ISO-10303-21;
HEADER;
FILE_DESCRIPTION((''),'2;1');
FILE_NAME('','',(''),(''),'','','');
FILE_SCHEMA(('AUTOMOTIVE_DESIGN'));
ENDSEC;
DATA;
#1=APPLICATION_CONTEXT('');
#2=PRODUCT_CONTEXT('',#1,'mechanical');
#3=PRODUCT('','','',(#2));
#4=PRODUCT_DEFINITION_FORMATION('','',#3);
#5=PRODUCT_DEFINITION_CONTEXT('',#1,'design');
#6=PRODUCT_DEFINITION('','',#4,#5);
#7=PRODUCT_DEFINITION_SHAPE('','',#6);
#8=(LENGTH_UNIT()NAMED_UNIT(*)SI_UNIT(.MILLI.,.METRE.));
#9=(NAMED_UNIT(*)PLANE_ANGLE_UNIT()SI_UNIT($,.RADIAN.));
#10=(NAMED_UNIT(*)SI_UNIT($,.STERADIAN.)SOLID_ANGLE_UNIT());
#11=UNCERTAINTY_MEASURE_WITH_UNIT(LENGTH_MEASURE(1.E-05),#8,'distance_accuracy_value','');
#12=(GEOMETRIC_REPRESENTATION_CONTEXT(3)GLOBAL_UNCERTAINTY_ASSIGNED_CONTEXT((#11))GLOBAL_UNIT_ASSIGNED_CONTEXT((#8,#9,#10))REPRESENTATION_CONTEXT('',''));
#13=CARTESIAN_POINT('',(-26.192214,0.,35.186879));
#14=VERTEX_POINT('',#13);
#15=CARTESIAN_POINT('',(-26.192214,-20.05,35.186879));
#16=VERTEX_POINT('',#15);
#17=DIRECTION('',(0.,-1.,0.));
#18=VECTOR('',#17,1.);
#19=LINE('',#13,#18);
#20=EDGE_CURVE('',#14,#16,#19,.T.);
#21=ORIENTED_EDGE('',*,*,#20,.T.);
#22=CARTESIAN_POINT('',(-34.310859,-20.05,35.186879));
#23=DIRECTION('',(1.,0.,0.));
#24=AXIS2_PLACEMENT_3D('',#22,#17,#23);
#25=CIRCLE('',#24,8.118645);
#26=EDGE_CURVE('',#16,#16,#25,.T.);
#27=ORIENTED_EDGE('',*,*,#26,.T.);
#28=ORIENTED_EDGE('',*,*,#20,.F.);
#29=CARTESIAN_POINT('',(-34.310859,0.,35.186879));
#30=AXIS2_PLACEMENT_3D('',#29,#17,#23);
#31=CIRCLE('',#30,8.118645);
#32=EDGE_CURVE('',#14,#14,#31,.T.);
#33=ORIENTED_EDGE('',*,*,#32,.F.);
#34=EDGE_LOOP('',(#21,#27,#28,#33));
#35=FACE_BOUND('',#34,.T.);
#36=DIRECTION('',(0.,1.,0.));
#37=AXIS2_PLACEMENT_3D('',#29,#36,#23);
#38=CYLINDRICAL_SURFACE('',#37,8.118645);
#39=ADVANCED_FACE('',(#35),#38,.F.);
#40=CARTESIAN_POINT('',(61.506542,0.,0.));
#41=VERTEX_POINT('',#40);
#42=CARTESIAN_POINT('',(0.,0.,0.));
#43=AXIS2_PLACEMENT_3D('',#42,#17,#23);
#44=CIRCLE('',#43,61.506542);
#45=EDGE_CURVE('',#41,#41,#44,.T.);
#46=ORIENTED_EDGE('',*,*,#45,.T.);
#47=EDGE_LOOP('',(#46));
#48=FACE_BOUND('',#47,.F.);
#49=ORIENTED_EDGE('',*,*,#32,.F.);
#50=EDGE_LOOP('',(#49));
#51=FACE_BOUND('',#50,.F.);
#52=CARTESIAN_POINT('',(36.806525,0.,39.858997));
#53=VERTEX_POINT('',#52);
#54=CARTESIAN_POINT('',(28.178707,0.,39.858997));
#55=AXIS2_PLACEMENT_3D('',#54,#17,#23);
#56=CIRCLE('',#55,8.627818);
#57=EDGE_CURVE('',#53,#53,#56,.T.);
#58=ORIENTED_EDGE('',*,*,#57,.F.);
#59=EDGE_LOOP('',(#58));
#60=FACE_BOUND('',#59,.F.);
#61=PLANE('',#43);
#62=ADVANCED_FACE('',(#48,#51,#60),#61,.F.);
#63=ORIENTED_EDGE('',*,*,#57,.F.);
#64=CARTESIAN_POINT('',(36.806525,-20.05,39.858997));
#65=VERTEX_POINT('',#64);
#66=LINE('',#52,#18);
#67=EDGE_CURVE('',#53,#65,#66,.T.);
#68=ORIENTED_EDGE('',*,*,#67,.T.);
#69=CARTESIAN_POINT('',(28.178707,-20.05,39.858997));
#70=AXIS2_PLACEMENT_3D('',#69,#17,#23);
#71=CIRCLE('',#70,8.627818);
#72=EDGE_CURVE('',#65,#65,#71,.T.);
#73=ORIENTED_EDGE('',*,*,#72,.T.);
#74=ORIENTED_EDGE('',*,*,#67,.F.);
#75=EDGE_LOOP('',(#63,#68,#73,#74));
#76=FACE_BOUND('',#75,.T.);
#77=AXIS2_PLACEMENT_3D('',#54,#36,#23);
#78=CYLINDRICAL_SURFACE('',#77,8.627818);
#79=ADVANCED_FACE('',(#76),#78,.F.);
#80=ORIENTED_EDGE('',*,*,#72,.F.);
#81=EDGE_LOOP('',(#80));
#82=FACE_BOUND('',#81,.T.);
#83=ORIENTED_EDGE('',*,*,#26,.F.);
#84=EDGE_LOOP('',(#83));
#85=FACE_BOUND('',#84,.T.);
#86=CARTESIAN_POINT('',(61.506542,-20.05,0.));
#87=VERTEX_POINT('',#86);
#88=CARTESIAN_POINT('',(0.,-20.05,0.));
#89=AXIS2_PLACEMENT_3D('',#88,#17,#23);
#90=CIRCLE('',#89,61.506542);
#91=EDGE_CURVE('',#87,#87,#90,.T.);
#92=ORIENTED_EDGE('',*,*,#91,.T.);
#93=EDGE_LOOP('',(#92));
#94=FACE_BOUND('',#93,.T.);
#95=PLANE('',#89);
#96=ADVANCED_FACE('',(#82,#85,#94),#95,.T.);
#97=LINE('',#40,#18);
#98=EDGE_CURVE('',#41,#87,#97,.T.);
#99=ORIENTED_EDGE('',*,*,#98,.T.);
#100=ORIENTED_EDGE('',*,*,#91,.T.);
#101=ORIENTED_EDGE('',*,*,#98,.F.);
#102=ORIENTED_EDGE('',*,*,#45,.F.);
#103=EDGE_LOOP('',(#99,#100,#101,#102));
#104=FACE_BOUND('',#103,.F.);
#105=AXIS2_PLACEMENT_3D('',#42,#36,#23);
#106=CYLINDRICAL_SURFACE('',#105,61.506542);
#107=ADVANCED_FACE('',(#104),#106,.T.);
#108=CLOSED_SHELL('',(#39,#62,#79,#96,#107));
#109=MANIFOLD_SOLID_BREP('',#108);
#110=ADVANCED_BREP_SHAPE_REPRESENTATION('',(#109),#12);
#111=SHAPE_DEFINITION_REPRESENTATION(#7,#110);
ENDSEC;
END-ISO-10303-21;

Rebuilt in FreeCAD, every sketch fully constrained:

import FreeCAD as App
import Part
import Sketcher

doc = App.newDocument("Part")
body = doc.addObject("PartDesign::Body", "Body")

# Sketch on XZ plane
sketch1 = body.newObject("Sketcher::SketchObject", "Sketch")
sketch1.AttachmentSupport = (doc.getObject("XZ_Plane"), [""])
sketch1.MapMode = "FlatFace"
sketch1.addGeometry([
    Part.Circle(App.Vector(0, 0, 0), App.Vector(0, 0, 1), 61.506542),
    Part.Circle(App.Vector(-34.310859, 35.186879, 0), App.Vector(0, 0, 1), 8.118645),
    Part.Circle(App.Vector(28.178707, 39.858997, 0), App.Vector(0, 0, 1), 8.627818),
], False)
sketch1.addConstraint([
    Sketcher.Constraint("Coincident", 0, 3, -1, 1),
    Sketcher.Constraint("Diameter", 1, 16.23729),
    Sketcher.Constraint("Diameter", 0, 123.013084),
    Sketcher.Constraint("Diameter", 2, 17.255636),
    Sketcher.Constraint("DistanceX", 1, 3, -1, 1, 34.310859),
    Sketcher.Constraint("DistanceY", -1, 1, 1, 3, 35.186879),
    Sketcher.Constraint("DistanceY", 1, 3, 2, 3, 4.672118),
    Sketcher.Constraint("DistanceX", -1, 1, 2, 3, 28.178707),
])
pad1 = body.newObject("PartDesign::Pad", "Pad")
pad1.Profile = sketch1
pad1.Length = 20.05

doc.recompute()
